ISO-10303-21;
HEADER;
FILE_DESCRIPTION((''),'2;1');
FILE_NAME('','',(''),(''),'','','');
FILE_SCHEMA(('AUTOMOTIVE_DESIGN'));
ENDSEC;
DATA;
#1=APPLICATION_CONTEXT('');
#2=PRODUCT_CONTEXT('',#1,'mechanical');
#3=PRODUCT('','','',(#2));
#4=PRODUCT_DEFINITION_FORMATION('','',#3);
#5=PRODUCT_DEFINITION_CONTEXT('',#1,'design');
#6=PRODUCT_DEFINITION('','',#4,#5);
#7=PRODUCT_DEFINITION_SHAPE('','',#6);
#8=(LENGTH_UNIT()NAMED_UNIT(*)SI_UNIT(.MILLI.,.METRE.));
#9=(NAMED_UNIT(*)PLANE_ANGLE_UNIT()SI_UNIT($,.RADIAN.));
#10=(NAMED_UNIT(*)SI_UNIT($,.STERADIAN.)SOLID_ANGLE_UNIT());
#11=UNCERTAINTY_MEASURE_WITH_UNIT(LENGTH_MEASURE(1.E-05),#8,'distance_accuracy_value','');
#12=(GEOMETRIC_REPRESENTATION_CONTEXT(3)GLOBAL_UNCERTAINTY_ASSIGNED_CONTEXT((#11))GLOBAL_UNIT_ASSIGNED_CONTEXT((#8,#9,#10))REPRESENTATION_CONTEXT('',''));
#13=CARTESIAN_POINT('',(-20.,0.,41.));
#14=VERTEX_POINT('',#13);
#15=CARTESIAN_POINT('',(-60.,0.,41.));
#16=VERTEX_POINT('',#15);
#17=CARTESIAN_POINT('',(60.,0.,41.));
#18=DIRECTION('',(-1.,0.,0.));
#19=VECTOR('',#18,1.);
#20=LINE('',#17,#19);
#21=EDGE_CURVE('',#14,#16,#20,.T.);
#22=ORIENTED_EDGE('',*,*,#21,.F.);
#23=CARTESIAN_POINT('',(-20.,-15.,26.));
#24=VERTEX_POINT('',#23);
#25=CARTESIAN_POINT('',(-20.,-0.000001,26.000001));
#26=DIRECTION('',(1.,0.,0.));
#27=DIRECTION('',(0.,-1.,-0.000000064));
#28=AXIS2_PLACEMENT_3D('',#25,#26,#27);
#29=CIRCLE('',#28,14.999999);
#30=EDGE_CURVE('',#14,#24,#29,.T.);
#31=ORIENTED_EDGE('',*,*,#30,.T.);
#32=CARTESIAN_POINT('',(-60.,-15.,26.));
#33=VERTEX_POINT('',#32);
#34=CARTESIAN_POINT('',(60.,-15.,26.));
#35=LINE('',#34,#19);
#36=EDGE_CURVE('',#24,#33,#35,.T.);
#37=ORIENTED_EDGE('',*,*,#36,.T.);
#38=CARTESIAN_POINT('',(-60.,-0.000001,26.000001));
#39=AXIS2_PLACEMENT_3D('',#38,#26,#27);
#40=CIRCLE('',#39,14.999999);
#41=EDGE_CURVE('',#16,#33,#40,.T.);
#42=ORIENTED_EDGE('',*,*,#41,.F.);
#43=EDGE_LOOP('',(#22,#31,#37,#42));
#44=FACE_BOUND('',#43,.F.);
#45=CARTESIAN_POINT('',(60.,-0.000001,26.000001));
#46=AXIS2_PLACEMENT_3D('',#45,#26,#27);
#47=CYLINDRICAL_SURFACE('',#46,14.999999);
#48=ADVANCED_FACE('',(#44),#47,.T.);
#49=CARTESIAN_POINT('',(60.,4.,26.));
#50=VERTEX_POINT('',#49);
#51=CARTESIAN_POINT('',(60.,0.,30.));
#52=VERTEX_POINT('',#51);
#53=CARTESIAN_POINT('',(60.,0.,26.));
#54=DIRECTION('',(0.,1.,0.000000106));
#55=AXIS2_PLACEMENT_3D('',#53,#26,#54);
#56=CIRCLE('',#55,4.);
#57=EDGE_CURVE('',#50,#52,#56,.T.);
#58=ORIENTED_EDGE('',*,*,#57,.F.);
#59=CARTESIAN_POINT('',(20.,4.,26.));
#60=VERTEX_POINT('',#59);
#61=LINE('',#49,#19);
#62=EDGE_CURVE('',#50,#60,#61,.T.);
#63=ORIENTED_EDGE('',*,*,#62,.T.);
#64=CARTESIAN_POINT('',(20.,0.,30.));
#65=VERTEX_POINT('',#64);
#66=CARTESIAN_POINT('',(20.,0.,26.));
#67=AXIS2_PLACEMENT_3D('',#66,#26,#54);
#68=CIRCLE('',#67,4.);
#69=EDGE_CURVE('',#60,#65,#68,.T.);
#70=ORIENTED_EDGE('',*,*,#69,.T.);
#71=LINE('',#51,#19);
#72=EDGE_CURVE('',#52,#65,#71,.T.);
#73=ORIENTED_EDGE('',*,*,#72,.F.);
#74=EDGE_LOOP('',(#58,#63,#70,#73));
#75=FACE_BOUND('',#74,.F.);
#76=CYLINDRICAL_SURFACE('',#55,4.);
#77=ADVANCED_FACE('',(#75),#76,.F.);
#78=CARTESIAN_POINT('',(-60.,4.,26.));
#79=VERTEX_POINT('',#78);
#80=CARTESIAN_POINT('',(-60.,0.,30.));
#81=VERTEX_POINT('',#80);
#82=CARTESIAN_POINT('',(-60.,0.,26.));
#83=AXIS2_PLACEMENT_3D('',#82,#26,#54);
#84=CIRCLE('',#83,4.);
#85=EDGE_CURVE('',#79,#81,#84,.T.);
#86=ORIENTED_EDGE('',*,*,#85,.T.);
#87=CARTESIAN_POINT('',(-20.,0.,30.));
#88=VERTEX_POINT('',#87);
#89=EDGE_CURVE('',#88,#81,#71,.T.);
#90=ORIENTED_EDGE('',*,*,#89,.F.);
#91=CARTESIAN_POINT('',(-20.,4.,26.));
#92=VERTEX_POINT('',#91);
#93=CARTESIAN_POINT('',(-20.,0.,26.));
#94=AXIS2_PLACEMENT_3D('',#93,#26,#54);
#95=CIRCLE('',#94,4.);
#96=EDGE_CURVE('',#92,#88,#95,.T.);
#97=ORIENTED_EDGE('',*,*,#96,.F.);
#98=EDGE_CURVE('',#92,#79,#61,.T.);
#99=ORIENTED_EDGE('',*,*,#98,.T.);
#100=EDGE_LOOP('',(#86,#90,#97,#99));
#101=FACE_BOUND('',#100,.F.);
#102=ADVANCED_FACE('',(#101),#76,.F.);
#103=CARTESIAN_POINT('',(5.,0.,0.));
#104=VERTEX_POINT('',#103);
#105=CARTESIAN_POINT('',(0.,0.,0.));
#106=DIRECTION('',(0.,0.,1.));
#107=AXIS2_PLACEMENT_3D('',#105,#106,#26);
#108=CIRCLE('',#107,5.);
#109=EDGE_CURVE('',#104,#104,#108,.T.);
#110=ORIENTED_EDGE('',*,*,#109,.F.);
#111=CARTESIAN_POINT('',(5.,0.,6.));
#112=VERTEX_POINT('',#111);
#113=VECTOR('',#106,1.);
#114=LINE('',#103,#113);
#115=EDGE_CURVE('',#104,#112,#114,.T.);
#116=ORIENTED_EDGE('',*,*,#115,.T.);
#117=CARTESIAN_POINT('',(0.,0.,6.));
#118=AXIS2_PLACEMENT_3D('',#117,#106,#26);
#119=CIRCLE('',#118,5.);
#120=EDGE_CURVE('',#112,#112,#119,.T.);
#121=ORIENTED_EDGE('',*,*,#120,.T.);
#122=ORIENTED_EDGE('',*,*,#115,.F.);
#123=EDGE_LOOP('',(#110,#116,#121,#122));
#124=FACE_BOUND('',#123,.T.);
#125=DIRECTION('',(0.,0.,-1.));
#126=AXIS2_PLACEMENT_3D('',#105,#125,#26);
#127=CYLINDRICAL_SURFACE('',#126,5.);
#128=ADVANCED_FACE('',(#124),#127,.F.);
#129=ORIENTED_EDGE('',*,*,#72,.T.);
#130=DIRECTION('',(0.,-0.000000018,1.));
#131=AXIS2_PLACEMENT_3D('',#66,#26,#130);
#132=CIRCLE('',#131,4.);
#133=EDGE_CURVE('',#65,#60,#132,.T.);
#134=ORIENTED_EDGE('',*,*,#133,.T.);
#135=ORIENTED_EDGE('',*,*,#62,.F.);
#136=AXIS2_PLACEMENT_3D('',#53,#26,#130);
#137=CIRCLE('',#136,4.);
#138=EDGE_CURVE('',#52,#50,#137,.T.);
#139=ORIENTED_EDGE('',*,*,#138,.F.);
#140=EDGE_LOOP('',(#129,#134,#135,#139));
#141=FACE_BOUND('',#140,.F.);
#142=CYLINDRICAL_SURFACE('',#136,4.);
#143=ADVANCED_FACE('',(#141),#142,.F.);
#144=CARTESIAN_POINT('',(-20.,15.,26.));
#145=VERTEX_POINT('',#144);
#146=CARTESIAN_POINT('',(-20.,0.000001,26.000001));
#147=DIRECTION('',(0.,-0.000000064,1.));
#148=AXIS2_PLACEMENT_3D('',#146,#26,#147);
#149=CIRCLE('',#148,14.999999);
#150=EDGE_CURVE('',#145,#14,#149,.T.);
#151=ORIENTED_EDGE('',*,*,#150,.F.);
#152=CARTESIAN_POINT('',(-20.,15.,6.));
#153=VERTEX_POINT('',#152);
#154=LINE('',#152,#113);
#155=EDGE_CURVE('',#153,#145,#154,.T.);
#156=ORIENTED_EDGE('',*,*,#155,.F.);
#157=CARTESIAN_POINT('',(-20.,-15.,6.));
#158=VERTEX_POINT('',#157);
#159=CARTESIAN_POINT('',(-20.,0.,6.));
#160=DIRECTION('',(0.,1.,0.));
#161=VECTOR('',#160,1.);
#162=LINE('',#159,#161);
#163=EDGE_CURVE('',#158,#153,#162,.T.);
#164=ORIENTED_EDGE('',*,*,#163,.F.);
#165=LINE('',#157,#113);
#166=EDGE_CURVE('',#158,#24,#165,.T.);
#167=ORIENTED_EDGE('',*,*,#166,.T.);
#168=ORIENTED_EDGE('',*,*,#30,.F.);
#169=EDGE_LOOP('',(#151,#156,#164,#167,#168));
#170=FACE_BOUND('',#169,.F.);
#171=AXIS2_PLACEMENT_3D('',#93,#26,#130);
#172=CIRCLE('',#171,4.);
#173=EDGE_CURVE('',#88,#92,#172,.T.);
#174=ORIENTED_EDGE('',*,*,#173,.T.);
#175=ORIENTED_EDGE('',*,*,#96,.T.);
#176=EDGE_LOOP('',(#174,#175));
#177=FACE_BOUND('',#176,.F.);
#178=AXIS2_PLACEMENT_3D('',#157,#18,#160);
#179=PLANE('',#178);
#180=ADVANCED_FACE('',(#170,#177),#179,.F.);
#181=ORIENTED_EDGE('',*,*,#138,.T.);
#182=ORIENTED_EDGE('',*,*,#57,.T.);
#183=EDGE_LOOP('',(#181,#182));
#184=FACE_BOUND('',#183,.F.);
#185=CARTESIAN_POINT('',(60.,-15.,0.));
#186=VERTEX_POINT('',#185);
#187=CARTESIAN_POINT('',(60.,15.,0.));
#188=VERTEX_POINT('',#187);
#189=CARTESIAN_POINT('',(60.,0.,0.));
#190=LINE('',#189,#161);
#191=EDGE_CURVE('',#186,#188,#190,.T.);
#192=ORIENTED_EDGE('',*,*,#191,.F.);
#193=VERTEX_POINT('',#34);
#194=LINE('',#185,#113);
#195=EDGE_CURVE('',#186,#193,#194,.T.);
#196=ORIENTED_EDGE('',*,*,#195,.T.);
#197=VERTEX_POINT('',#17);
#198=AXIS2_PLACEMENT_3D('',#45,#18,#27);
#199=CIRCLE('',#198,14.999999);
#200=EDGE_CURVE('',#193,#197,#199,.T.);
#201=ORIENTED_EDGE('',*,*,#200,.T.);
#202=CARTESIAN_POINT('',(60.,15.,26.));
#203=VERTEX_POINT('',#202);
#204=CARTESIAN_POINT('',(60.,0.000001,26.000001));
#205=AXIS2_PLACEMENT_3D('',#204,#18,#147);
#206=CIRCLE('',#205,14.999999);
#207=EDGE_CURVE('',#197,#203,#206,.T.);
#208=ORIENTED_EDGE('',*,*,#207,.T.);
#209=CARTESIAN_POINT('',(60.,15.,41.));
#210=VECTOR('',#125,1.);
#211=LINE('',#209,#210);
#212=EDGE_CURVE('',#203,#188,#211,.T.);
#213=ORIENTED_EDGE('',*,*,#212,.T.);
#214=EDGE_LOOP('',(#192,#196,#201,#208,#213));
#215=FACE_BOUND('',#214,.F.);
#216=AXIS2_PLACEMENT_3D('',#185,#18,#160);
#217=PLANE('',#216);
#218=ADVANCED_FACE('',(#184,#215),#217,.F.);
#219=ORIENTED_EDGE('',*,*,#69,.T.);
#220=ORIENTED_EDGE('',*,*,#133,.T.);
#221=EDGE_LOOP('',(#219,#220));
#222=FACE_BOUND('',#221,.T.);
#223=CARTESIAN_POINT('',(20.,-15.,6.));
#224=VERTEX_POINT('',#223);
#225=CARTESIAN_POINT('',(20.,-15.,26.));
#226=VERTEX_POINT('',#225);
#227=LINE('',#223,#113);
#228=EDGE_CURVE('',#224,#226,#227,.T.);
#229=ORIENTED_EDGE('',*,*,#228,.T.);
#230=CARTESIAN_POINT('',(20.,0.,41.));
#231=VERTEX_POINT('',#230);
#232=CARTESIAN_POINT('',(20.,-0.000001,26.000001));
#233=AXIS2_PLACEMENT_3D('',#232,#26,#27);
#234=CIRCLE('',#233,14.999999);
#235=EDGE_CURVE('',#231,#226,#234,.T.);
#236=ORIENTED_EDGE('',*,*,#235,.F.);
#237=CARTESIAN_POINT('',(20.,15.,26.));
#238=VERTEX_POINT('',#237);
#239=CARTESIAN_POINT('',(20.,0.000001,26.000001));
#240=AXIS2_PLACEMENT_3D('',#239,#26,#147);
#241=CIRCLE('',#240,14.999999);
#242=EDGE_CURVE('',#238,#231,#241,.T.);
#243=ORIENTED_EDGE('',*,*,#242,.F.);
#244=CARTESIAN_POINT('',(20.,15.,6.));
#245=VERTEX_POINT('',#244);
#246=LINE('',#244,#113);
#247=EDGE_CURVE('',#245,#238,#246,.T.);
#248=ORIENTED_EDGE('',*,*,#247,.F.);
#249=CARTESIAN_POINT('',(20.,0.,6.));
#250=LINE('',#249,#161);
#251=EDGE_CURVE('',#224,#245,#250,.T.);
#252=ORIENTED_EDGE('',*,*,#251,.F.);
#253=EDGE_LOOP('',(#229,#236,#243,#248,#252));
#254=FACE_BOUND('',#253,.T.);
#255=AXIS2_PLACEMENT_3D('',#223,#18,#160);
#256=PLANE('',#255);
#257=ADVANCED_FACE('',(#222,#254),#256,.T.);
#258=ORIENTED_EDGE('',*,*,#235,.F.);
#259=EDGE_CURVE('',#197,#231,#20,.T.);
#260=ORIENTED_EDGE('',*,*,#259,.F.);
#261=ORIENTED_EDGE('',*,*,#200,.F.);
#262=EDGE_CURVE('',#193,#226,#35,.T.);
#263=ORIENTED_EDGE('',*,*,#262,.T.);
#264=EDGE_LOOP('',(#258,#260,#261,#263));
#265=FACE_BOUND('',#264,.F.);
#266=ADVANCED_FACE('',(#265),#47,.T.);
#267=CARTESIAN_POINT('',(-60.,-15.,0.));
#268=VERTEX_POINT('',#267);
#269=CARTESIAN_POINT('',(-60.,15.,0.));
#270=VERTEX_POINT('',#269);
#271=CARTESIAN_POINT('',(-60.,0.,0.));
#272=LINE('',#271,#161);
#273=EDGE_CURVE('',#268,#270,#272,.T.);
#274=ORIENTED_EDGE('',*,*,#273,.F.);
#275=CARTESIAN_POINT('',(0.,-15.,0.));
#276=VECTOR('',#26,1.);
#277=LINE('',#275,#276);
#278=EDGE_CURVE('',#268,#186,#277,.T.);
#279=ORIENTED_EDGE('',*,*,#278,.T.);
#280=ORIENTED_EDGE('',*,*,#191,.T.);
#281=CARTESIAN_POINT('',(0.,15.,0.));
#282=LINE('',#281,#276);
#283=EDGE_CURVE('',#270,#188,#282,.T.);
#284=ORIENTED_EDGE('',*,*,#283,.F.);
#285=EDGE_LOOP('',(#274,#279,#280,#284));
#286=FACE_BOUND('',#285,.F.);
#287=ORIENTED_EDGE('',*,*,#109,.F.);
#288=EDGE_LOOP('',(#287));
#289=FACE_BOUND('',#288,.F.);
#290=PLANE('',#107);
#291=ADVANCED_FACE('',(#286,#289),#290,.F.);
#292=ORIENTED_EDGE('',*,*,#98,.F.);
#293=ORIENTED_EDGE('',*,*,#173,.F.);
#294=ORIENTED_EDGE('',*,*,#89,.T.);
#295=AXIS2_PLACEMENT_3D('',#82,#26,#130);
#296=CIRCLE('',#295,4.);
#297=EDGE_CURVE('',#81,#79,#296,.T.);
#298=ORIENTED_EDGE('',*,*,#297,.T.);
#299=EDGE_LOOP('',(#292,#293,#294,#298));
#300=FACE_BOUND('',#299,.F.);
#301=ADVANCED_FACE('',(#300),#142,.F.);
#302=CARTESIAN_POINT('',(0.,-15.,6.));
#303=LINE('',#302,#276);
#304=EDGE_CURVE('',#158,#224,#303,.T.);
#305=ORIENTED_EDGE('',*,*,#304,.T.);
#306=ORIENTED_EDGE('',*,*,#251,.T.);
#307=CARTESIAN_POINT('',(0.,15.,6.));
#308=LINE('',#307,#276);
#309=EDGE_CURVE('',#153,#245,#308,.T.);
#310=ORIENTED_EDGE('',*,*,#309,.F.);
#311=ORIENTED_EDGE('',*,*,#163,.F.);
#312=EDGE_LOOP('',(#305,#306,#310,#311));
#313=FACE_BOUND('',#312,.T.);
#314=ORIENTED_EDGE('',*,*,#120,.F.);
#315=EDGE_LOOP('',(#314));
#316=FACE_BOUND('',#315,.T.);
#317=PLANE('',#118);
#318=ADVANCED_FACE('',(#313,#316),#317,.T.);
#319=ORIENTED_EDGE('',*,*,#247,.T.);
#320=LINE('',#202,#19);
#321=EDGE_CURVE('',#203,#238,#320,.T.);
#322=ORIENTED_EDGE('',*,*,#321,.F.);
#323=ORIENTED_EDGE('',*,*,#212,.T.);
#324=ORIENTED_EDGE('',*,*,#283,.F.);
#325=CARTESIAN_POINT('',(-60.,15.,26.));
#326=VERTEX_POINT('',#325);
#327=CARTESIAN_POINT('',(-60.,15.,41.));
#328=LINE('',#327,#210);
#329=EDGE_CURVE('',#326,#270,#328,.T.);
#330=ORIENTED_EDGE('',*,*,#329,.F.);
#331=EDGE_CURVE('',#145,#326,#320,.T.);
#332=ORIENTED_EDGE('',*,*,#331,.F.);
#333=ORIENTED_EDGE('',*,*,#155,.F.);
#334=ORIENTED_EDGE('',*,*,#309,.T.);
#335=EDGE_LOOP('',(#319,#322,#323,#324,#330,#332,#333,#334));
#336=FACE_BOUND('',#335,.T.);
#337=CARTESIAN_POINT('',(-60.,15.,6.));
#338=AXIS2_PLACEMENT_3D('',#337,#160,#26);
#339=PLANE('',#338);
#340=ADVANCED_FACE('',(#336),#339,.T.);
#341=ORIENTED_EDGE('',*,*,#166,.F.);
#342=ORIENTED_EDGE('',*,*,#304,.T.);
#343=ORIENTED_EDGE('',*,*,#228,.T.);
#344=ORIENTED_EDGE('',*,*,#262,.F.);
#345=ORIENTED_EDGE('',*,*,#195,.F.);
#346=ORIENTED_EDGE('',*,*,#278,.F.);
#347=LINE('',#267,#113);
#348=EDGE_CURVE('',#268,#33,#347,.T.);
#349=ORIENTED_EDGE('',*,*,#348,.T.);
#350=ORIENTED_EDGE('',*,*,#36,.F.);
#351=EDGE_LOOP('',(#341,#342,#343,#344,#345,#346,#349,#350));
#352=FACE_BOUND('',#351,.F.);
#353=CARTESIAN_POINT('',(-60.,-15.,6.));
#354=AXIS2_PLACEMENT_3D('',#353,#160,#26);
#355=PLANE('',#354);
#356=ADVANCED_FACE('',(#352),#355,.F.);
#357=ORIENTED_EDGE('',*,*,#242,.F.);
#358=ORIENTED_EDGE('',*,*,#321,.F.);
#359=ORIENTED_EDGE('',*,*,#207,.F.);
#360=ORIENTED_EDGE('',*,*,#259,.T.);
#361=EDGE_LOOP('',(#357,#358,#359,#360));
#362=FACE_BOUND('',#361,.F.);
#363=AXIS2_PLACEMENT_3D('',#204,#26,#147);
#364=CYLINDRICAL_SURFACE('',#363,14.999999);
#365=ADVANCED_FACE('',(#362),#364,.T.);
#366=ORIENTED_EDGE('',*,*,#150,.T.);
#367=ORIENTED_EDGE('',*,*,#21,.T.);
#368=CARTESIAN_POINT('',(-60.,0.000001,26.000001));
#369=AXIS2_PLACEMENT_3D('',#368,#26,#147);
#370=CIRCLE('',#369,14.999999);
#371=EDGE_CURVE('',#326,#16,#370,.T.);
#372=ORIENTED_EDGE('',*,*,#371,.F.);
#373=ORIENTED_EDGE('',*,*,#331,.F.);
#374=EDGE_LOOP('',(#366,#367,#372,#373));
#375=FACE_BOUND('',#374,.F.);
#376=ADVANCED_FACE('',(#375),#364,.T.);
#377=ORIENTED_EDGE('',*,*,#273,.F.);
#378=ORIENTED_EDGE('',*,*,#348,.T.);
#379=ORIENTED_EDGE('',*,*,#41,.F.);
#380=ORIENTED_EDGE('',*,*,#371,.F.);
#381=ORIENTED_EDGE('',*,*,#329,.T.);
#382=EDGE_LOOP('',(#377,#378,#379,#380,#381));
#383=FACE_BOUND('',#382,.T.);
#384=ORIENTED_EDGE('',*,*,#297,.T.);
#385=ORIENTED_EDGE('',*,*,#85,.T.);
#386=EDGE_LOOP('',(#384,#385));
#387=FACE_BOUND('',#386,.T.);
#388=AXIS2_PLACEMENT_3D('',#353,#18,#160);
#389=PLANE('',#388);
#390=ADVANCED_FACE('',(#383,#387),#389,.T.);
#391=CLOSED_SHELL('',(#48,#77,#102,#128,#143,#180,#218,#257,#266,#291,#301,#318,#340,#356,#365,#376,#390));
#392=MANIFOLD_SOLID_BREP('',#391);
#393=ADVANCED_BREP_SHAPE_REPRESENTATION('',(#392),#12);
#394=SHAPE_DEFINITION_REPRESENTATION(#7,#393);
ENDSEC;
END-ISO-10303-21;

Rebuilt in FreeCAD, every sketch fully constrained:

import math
import FreeCAD as App
import Part
import Sketcher

V = App.Vector

doc = App.newDocument("Part")
params = doc.addObject("Spreadsheet::Sheet", "Params")
for row, (alias, value) in enumerate([
    ("sketch1_diameter", "10 mm"),
    ("sketch1_width", "120 mm"),
    ("sketch1_height", "30 mm"),
    ("pad1_length", "6 mm"),
    ("sketch2_width", "40 mm"),
    ("sketch2_height", "30 mm"),
    ("pad2_length", "35 mm"),
    ("sketch3_radius", "14.999999 mm"),
    ("sketch3_radius2", "4 mm"),
    ("pocket1_length", "122 mm"),
], start=1):
    params.set(f"A{row}", alias)
    params.set(f"B{row}", "=" + value)
    params.setAlias(f"B{row}", alias)

body = doc.addObject("PartDesign::Body", "Body")

# Sketch on XY plane
sketch1 = body.newObject("Sketcher::SketchObject", "Sketch")
sketch1.AttachmentSupport = (doc.getObject("XY_Plane"), [""])
sketch1.MapMode = "FlatFace"
sketch1.addGeometry([
    Part.LineSegment(V(-60, 15, 0), V(-60, -15, 0)),  # 0
    Part.LineSegment(V(-60, -15, 0), V(60, -15, 0)),  # 1
    Part.LineSegment(V(60, -15, 0), V(60, 15, 0)),  # 2
    Part.LineSegment(V(60, 15, 0), V(-60, 15, 0)),  # 3
    Part.Circle(V(0, 0, 0), V(0, 0, 1), 5),  # 4
], False)
sketch1.addConstraint([
    Sketcher.Constraint("Coincident", 0, 2, 1, 1),
    Sketcher.Constraint("Coincident", 1, 2, 2, 1),
    Sketcher.Constraint("Coincident", 2, 2, 3, 1),
    Sketcher.Constraint("Coincident", 3, 2, 0, 1),
    Sketcher.Constraint("Vertical", 0),
    Sketcher.Constraint("Horizontal", 1),
    Sketcher.Constraint("Vertical", 2),
    Sketcher.Constraint("Horizontal", 3),
    Sketcher.Constraint("Coincident", 4, 3, -1, 1),
    Sketcher.Constraint("Symmetric", 0, 2, 2, 2, -1, 1),
    Sketcher.Constraint("Diameter", 4, 10.0),
    Sketcher.Constraint("DistanceX", 1, 1, 1, 2, 120.0),
    Sketcher.Constraint("DistanceY", 0, 2, 0, 1, 30.0),
])
sketch1.setExpression("Constraints[10]", "Params.sketch1_diameter")
sketch1.setExpression("Constraints[11]", "Params.sketch1_width")
sketch1.setExpression("Constraints[12]", "Params.sketch1_height")
pad1 = body.newObject("PartDesign::Pad", "Pad")
pad1.Profile = sketch1
pad1.setExpression("Length", "Params.pad1_length")

# Sketch on XY plane
sketch2 = body.newObject("Sketcher::SketchObject", "Sketch001")
sketch2.AttachmentSupport = (doc.getObject("XY_Plane"), [""])
sketch2.MapMode = "FlatFace"
sketch2.AttachmentOffset = App.Placement(V(0, 0, 6), App.Rotation())
sketch2.addGeometry([
    Part.LineSegment(V(-60, 15, 0), V(-60, -15, 0)),  # 0
    Part.LineSegment(V(-60, -15, 0), V(-20, -15, 0)),  # 1
    Part.LineSegment(V(-20, -15, 0), V(-20, 15, 0)),  # 2
    Part.LineSegment(V(-20, 15, 0), V(-60, 15, 0)),  # 3
    Part.LineSegment(V(20, 15, 0), V(20, -15, 0)),  # 4
    Part.LineSegment(V(20, -15, 0), V(60, -15, 0)),  # 5
    Part.LineSegment(V(60, -15, 0), V(60, 15, 0)),  # 6
    Part.LineSegment(V(60, 15, 0), V(20, 15, 0)),  # 7
], False)
sketch2.addConstraint([
    Sketcher.Constraint("Coincident", 0, 2, 1, 1),
    Sketcher.Constraint("Coincident", 1, 2, 2, 1),
    Sketcher.Constraint("Coincident", 2, 2, 3, 1),
    Sketcher.Constraint("Coincident", 3, 2, 0, 1),
    Sketcher.Constraint("Coincident", 4, 2, 5, 1),
    Sketcher.Constraint("Coincident", 5, 2, 6, 1),
    Sketcher.Constraint("Coincident", 6, 2, 7, 1),
    Sketcher.Constraint("Coincident", 7, 2, 4, 1),
    Sketcher.Constraint("Vertical", 0),
    Sketcher.Constraint("Horizontal", 1),
    Sketcher.Constraint("Vertical", 2),
    Sketcher.Constraint("Horizontal", 3),
    Sketcher.Constraint("Vertical", 4),
    Sketcher.Constraint("Horizontal", 5),
    Sketcher.Constraint("Vertical", 6),
    Sketcher.Constraint("Horizontal", 7),
    Sketcher.Constraint("Symmetric", 2, 2, 4, 2, -1, 1),
    Sketcher.Constraint("Symmetric", 0, 2, 6, 2, -1, 1),
    Sketcher.Constraint("Horizontal", 1, 2, 4, 2),
    Sketcher.Constraint("DistanceX", 1, 1, 1, 2, 40.0),
    Sketcher.Constraint("DistanceY", 0, 2, 0, 1, 30.0),
    Sketcher.Constraint("DistanceX", 0, 2, -1, 1, 60.0),
])
sketch2.setExpression("Constraints[19]", "Params.sketch2_width")
sketch2.setExpression("Constraints[20]", "Params.sketch2_height")
pad2 = body.newObject("PartDesign::Pad", "Pad001")
pad2.Profile = sketch2
pad2.setExpression("Length", "Params.pad2_length")

# Sketch on YZ plane
sketch3 = body.newObject("Sketcher::SketchObject", "Sketch002")
sketch3.AttachmentSupport = (doc.getObject("YZ_Plane"), [""])
sketch3.MapMode = "FlatFace"
sketch3.AttachmentOffset = App.Placement(V(0, 0, 60), App.Rotation())
sketch3.addGeometry([
    Part.LineSegment(V(0, 41, 0), V(-15, 41, 0)),  # 0
    Part.LineSegment(V(-15, 41, 0), V(-15, 26, 0)),  # 1
    Part.ArcOfCircle(Part.Circle(V(0, 26, 0), V(0, 0, 1), 15), math.radians(90), math.radians(180)),  # 2
    Part.LineSegment(V(15, 41, 0), V(0, 41, 0)),  # 3
    Part.ArcOfCircle(Part.Circle(V(0, 26, 0), V(0, 0, 1), 15), math.radians(0), math.radians(90)),  # 4
    Part.LineSegment(V(15, 26, 0), V(15, 41, 0)),  # 5
    Part.ArcOfCircle(Part.Circle(V(0, 26, 0), V(0, 0, 1), 4), math.radians(0), math.radians(90)),  # 6
    Part.ArcOfCircle(Part.Circle(V(0, 26, 0), V(0, 0, 1), 4), math.radians(90), math.radians(360)),  # 7
], False)
sketch3.addConstraint([
    Sketcher.Constraint("Coincident", 0, 2, 1, 1),
    Sketcher.Constraint("Tangent", 1, 2, 2, 2),
    Sketcher.Constraint("Tangent", 2, 1, 0, 1),
    Sketcher.Constraint("Tangent", 3, 2, 4, 2),
    Sketcher.Constraint("Tangent", 4, 1, 5, 1),
    Sketcher.Constraint("Coincident", 5, 2, 3, 1),
    Sketcher.Constraint("Tangent", 6, 1, 7, 2),
    Sketcher.Constraint("Coincident", 7, 1, 6, 2),
    Sketcher.Constraint("Horizontal", 0),
    Sketcher.Constraint("Vertical", 1),
    Sketcher.Constraint("Horizontal", 3),
    Sketcher.Constraint("Vertical", 5),
    Sketcher.Constraint("Coincident", 4, 3, 2, 3),
    Sketcher.Constraint("Coincident", 6, 3, 2, 3),
    Sketcher.Constraint("Equal", 2, 4),
    Sketcher.Constraint("PointOnObject", 2, 3, -2),
    Sketcher.Constraint("PointOnObject", 7, 1, -2),
    Sketcher.Constraint("Horizontal", 4, 1, 6, 1),
    Sketcher.Constraint("Radius", 2, 14.999999),
    Sketcher.Constraint("Radius", 6, 4.0),
    Sketcher.Constraint("DistanceY", -1, 1, 2, 3, 26.000001),
])
sketch3.setExpression("Constraints[18]", "Params.sketch3_radius")
sketch3.setExpression("Constraints[19]", "Params.sketch3_radius2")
pocket1 = body.newObject("PartDesign::Pocket", "Pocket")
pocket1.Profile = sketch3
pocket1.setExpression("Length", "Params.pocket1_length")

doc.recompute()
